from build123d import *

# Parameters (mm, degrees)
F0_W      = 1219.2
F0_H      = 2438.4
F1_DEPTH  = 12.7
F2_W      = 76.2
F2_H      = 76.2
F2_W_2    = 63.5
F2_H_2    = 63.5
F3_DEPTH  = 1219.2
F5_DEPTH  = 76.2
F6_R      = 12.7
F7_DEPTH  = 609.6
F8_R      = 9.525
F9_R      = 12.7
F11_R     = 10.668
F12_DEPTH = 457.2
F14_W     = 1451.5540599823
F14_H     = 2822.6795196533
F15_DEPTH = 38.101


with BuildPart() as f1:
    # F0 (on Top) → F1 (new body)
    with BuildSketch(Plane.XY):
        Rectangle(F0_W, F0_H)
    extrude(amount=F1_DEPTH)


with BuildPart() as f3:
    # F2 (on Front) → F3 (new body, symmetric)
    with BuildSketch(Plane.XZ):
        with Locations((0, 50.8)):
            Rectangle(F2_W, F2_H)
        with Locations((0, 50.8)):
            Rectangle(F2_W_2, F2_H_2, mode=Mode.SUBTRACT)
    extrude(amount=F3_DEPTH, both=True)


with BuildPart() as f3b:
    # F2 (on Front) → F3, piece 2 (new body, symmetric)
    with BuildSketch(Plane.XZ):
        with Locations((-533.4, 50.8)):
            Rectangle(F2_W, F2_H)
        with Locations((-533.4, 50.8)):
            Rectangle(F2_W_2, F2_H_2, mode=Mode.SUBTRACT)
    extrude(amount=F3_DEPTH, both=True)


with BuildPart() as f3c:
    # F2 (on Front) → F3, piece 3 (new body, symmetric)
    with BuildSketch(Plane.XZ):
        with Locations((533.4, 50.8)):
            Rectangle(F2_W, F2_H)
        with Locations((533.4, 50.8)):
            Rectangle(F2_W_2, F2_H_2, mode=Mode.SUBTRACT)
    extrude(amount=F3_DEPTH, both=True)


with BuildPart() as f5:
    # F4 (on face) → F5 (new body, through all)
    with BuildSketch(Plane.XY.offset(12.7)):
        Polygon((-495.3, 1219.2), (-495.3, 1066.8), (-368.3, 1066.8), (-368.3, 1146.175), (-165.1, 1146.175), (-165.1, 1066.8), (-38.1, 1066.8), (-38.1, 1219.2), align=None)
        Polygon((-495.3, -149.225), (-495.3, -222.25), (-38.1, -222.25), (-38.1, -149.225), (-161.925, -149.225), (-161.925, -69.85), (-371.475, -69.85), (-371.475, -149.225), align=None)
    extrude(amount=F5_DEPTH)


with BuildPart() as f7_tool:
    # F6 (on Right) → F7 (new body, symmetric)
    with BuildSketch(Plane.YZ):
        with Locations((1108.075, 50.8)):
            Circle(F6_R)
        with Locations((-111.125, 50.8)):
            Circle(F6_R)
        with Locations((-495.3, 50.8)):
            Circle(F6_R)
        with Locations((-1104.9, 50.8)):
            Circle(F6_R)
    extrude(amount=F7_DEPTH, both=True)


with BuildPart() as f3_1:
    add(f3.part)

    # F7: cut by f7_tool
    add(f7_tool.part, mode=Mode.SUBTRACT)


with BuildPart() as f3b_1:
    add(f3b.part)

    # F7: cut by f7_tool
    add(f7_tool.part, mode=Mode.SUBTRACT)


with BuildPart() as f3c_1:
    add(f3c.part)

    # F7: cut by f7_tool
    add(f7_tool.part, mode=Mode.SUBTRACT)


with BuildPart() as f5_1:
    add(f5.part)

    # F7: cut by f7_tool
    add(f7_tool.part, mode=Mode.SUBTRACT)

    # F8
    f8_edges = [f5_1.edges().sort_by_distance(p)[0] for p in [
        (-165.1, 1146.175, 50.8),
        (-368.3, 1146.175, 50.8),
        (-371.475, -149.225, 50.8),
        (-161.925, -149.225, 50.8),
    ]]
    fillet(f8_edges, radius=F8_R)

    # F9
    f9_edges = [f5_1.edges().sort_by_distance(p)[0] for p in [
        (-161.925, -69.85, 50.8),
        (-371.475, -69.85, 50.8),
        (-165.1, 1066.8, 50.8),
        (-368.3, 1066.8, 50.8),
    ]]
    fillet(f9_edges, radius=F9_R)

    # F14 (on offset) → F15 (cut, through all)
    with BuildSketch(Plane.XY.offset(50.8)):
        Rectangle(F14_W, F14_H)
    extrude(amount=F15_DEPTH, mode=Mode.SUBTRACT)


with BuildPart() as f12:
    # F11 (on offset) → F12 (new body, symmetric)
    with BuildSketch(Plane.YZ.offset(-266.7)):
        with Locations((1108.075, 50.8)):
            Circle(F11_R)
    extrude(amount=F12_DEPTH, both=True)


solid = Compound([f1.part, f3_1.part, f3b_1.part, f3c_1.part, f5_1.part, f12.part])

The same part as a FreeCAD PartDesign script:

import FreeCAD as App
import Part
import Sketcher
Q = App.Units.Quantity


def edges_at(feature, points):
    """Names of the edges that pass closest to the given points."""
    edges = feature.Shape.Edges
    near = lambda p: min(range(len(edges)), key=lambda i: edges[i].distToShape(Part.Vertex(*p))[0])
    return sorted({f"Edge{near(p) + 1}" for p in points})


def add_polygon(sketch, points):
    """Adds a closed chain of lines whose ends are joined by coincident constraints."""
    first, n = sketch.GeometryCount, len(points)
    for a, b in zip(points, points[1:] + points[:1]):
        sketch.addGeometry(Part.LineSegment(App.Vector(*a, 0), App.Vector(*b, 0)), False)
    for i in range(n):
        sketch.addConstraint(Sketcher.Constraint("Coincident", first + i, 2, first + (i + 1) % n, 1))

doc = App.newDocument("Part")
body = doc.addObject("PartDesign::Body", "Body")

sketch1 = body.newObject("Sketcher::SketchObject", "Sketch")
sketch1.AttachmentSupport = (doc.getObject("XY_Plane"), [""])
sketch1.MapMode = "FlatFace"
add_polygon(sketch1, [(-610, 1219), (-610, -1219), (610, -1219), (610, 1219)])
sketch1.addConstraint([
    Sketcher.Constraint("Vertical", 0),
    Sketcher.Constraint("Horizontal", 1),
    Sketcher.Constraint("Vertical", 2),
    Sketcher.Constraint("Horizontal", 3),
    Sketcher.Constraint("Symmetric", 0, 2, 2, 2, -1, 1),
    Sketcher.Constraint("DistanceX", 1, 1, 1, 2, Q("48 in")),
    Sketcher.Constraint("DistanceY", 0, 2, 0, 1, Q("96 in")),
])
pad1 = body.newObject("PartDesign::Pad", "Pad")
pad1.Profile = sketch1
pad1.Length = Q("0.5 in")
body2 = doc.addObject("PartDesign::Body", "Body001")

sketch2 = body2.newObject("Sketcher::SketchObject", "Sketch001")
sketch2.AttachmentSupport = (doc.getObject("XZ_Plane001"), [""])
sketch2.MapMode = "FlatFace"
add_polygon(sketch2, [(-38, 89), (-38, 13), (38, 13), (38, 89)])
add_polygon(sketch2, [(32, 19), (-32, 19), (-32, 83), (32, 83)])
sketch2.addConstraint([
    Sketcher.Constraint("Vertical", 0),
    Sketcher.Constraint("Horizontal", 1),
    Sketcher.Constraint("Vertical", 2),
    Sketcher.Constraint("Horizontal", 3),
    Sketcher.Constraint("Horizontal", 4),
    Sketcher.Constraint("Vertical", 5),
    Sketcher.Constraint("Horizontal", 6),
    Sketcher.Constraint("Vertical", 7),
    Sketcher.Constraint("Equal", 3, 0),
    Sketcher.Constraint("Equal", 6, 5),
    Sketcher.Constraint("DistanceX", 1, 1, 1, 2, Q("3 in")),
    Sketcher.Constraint("DistanceX", 4, 2, 4, 1, Q("2.5 in")),
    Sketcher.Constraint("DistanceX", 0, 2, -1, 1, Q("1.5 in")),
    Sketcher.Constraint("DistanceY", -1, 1, 0, 2, Q("0.5 in")),
    Sketcher.Constraint("DistanceX", 4, 2, -1, 1, Q("1.25 in")),
    Sketcher.Constraint("DistanceY", -1, 1, 4, 2, Q("0.75 in")),
])
pad2 = body2.newObject("PartDesign::Pad", "Pad001")
pad2.Profile = sketch2
pad2.Length = Q("96 in")
pad2.Midplane = True
body3 = doc.addObject("PartDesign::Body", "Body002")

sketch3 = body3.newObject("Sketcher::SketchObject", "Sketch002")
sketch3.AttachmentSupport = (doc.getObject("XZ_Plane002"), [""])
sketch3.MapMode = "FlatFace"
add_polygon(sketch3, [(-572, 89), (-572, 13), (-495, 13), (-495, 89)])
add_polygon(sketch3, [(-502, 19), (-565, 19), (-565, 83), (-502, 83)])
sketch3.addConstraint([
    Sketcher.Constraint("Vertical", 0),
    Sketcher.Constraint("Horizontal", 1),
    Sketcher.Constraint("Vertical", 2),
    Sketcher.Constraint("Horizontal", 3),
    Sketcher.Constraint("Horizontal", 4),
    Sketcher.Constraint("Vertical", 5),
    Sketcher.Constraint("Horizontal", 6),
    Sketcher.Constraint("Vertical", 7),
    Sketcher.Constraint("Equal", 3, 0),
    Sketcher.Constraint("Equal", 6, 5),
    Sketcher.Constraint("DistanceX", 1, 1, 1, 2, Q("3 in")),
    Sketcher.Constraint("DistanceX", 4, 2, 4, 1, Q("2.5 in")),
    Sketcher.Constraint("DistanceX", 0, 2, -1, 1, Q("22.5 in")),
    Sketcher.Constraint("DistanceY", -1, 1, 0, 2, Q("0.5 in")),
    Sketcher.Constraint("DistanceX", 4, 2, -1, 1, Q("22.25 in")),
    Sketcher.Constraint("DistanceY", -1, 1, 4, 2, Q("0.75 in")),
])
pad3 = body3.newObject("PartDesign::Pad", "Pad002")
pad3.Profile = sketch3
pad3.Length = Q("96 in")
pad3.Midplane = True
body4 = doc.addObject("PartDesign::Body", "Body003")

sketch4 = body4.newObject("Sketcher::SketchObject", "Sketch003")
sketch4.AttachmentSupport = (doc.getObject("XZ_Plane003"), [""])
sketch4.MapMode = "FlatFace"
add_polygon(sketch4, [(495, 89), (495, 13), (572, 13), (572, 89)])
add_polygon(sketch4, [(565, 19), (502, 19), (502, 83), (565, 83)])
sketch4.addConstraint([
    Sketcher.Constraint("Vertical", 0),
    Sketcher.Constraint("Horizontal", 1),
    Sketcher.Constraint("Vertical", 2),
    Sketcher.Constraint("Horizontal", 3),
    Sketcher.Constraint("Horizontal", 4),
    Sketcher.Constraint("Vertical", 5),
    Sketcher.Constraint("Horizontal", 6),
    Sketcher.Constraint("Vertical", 7),
    Sketcher.Constraint("Equal", 3, 0),
    Sketcher.Constraint("Equal", 6, 5),
    Sketcher.Constraint("DistanceX", 1, 1, 1, 2, Q("3 in")),
    Sketcher.Constraint("DistanceX", 4, 2, 4, 1, Q("2.5 in")),
    Sketcher.Constraint("DistanceX", -1, 1, 0, 2, Q("19.5 in")),
    Sketcher.Constraint("DistanceY", -1, 1, 0, 2, Q("0.5 in")),
    Sketcher.Constraint("DistanceX", -1, 1, 4, 2, Q("19.75 in")),
    Sketcher.Constraint("DistanceY", -1, 1, 4, 2, Q("0.75 in")),
])
pad4 = body4.newObject("PartDesign::Pad", "Pad003")
pad4.Profile = sketch4
pad4.Length = Q("96 in")
pad4.Midplane = True
body5 = doc.addObject("PartDesign::Body", "Body004")
body5.AllowCompound = True

sketch5 = body5.newObject("Sketcher::SketchObject", "Sketch004")
sketch5.AttachmentSupport = (doc.getObject("XY_Plane004"), [""])
sketch5.MapMode = "FlatFace"
sketch5.AttachmentOffset = App.Placement(App.Vector(0, 0, 0.5 * 25.4), App.Rotation())
add_polygon(sketch5, [(-495, 1219), (-495, 1067), (-368, 1067), (-368, 1146), (-165, 1146), (-165, 1067), (-38, 1067), (-38, 1219)])
add_polygon(sketch5, [(-495, -149), (-495, -222), (-38, -222), (-38, -149), (-162, -149), (-162, -70), (-371, -70), (-371, -149)])
sketch5.addConstraint([
    Sketcher.Constraint("Vertical", 0),
    Sketcher.Constraint("Horizontal", 1),
    Sketcher.Constraint("Vertical", 2),
    Sketcher.Constraint("Horizontal", 3),
    Sketcher.Constraint("Vertical", 4),
    Sketcher.Constraint("Horizontal", 5),
    Sketcher.Constraint("Vertical", 6),
    Sketcher.Constraint("Horizontal", 7),
    Sketcher.Constraint("Vertical", 8),
    Sketcher.Constraint("Horizontal", 9),
    Sketcher.Constraint("Vertical", 10),
    Sketcher.Constraint("Horizontal", 11),
    Sketcher.Constraint("Vertical", 12),
    Sketcher.Constraint("Horizontal", 13),
    Sketcher.Constraint("Vertical", 14),
    Sketcher.Constraint("Horizontal", 15),
    Sketcher.Constraint("Horizontal", 1, 2, 4, 2),
    Sketcher.Constraint("Horizontal", 11, 2, 14, 2),
    Sketcher.Constraint("Vertical", 7, 2, 8, 2),
    Sketcher.Constraint("Vertical", 6, 2, 9, 2),
    Sketcher.Constraint("Equal", 1, 5),
    Sketcher.Constraint("Equal", 11, 15),
    Sketcher.Constraint("Equal", 4, 12),
    Sketcher.Constraint("DistanceX", 1, 1, 1, 2, Q("5 in")),
    Sketcher.Constraint("DistanceX", 3, 1, 3, 2, Q("8 in")),
    Sketcher.Constraint("DistanceY", 0, 2, 0, 1, Q("6 in")),
    Sketcher.Constraint("DistanceY", -1, 1, 0, 2, Q("42 in")),
    Sketcher.Constraint("DistanceY", 9, 2, 12, 2, Q("6 in")),
    Sketcher.Constraint("DistanceX", 13, 2, 13, 1, Q("8.25 in")),
    Sketcher.Constraint("DistanceX", 0, 2, -1, 1, Q("19.5 in")),
    Sketcher.Constraint("DistanceY", 2, 1, 2, 2, Q("3.125 in")),
    Sketcher.Constraint("DistanceY", 8, 2, -1, 1, Q("8.75 in")),
])
pad5 = body5.newObject("PartDesign::Pad", "Pad004")
pad5.Profile = sketch5
pad5.Length = Q("3 in")
body6 = doc.addObject("PartDesign::Body", "Body005")
body6.AllowCompound = True

sketch6 = body6.newObject("Sketcher::SketchObject", "Sketch005")
sketch6.AttachmentSupport = (doc.getObject("YZ_Plane005"), [""])
sketch6.MapMode = "FlatFace"
sketch6.addGeometry([
    Part.Circle(App.Vector(1108, 51, 0), App.Vector(0, 0, 1), 13),
    Part.Circle(App.Vector(-111, 51, 0), App.Vector(0, 0, 1), 13),
    Part.Circle(App.Vector(-495, 51, 0), App.Vector(0, 0, 1), 13),
    Part.Circle(App.Vector(-1105, 51, 0), App.Vector(0, 0, 1), 13),
], False)
sketch6.addConstraint([
    Sketcher.Constraint("Equal", 0, 1),
    Sketcher.Constraint("Equal", 1, 2),
    Sketcher.Constraint("Equal", 2, 3),
    Sketcher.Constraint("Horizontal", 0, 3, 1, 3),
    Sketcher.Constraint("Horizontal", 1, 3, 2, 3),
    Sketcher.Constraint("Horizontal", 2, 3, 3, 3),
    Sketcher.Constraint("Diameter", 0, Q("1 in")),
    Sketcher.Constraint("DistanceY", -1, 1, 0, 3, Q("2 in")),
    Sketcher.Constraint("DistanceX", 1, 3, 0, 3, Q("48 in")),
    Sketcher.Constraint("DistanceX", 3, 3, 2, 3, Q("24 in")),
    Sketcher.Constraint("DistanceX", 2, 3, -1, 1, Q("19.5 in")),
    Sketcher.Constraint("DistanceX", -1, 1, 0, 3, Q("43.625 in")),
])
pad6 = body6.newObject("PartDesign::Pad", "Pad005")
pad6.Profile = sketch6
pad6.Length = Q("48 in")
pad6.Midplane = True
doc.recompute()

body7 = doc.addObject("PartDesign::Body", "Body006")
body7.BaseFeature = body6
boolean = body2.newObject("PartDesign::Boolean", "Boolean")
boolean.Type = "Cut"
boolean.addObjects([body7])
doc.recompute()

body8 = doc.addObject("PartDesign::Body", "Body007")
body8.BaseFeature = body6
boolean2 = body3.newObject("PartDesign::Boolean", "Boolean001")
boolean2.Type = "Cut"
boolean2.addObjects([body8])
doc.recompute()

body9 = doc.addObject("PartDesign::Body", "Body008")
body9.BaseFeature = body6
boolean3 = body4.newObject("PartDesign::Boolean", "Boolean002")
boolean3.Type = "Cut"
boolean3.addObjects([body9])
doc.recompute()
body5.AllowCompound = True
doc.recompute()

boolean4 = body5.newObject("PartDesign::Boolean", "Boolean003")
boolean4.Type = "Cut"
boolean4.addObjects([body6])
doc.recompute()

fillet = body5.newObject("PartDesign::Fillet", "Fillet")
fillet.Base = (boolean4, edges_at(boolean4, [
    (-165.1, 1146.175, 50.8),
    (-368.3, 1146.175, 50.8),
    (-371.475, -149.225, 50.8),
    (-161.925, -149.225, 50.8),
]))
fillet.Radius = Q("0.375 in")
doc.recompute()

fillet2 = body5.newObject("PartDesign::Fillet", "Fillet001")
fillet2.Base = (fillet, edges_at(fillet, [
    (-161.925, -69.85, 50.8),
    (-371.475, -69.85, 50.8),
    (-165.1, 1066.8, 50.8),
    (-368.3, 1066.8, 50.8),
]))
fillet2.Radius = Q("0.5 in")

sketch7 = body5.newObject("Sketcher::SketchObject", "Sketch006")
sketch7.AttachmentSupport = (doc.getObject("XY_Plane004"), [""])
sketch7.MapMode = "FlatFace"
sketch7.AttachmentOffset = App.Placement(App.Vector(0, 0, 2 * 25.4), App.Rotation())
add_polygon(sketch7, [(-726, 1411), (-726, -1411), (726, -1411), (726, 1411)])
sketch7.addConstraint([
    Sketcher.Constraint("Vertical", 0),
    Sketcher.Constraint("Horizontal", 1),
    Sketcher.Constraint("Vertical", 2),
    Sketcher.Constraint("Horizontal", 3),
    Sketcher.Constraint("Symmetric", 0, 2, 2, 2, -1, 1),
    Sketcher.Constraint("DistanceX", 1, 1, 1, 2, 1451.55406),
    Sketcher.Constraint("DistanceY", 0, 2, 0, 1, 2822.67952),
])
pocket1 = body5.newObject("PartDesign::Pocket", "Pocket")
pocket1.Profile = sketch7
pocket1.Type = "ThroughAll"
pocket1.Reversed = True
body10 = doc.addObject("PartDesign::Body", "Body009")

sketch8 = body10.newObject("Sketcher::SketchObject", "Sketch007")
sketch8.AttachmentSupport = (doc.getObject("YZ_Plane009"), [""])
sketch8.MapMode = "FlatFace"
sketch8.AttachmentOffset = App.Placement(App.Vector(0, 0, -10.5 * 25.4), App.Rotation())
sketch8.addGeometry(Part.Circle(App.Vector(1108, 51, 0), App.Vector(0, 0, 1), 11), False)
sketch8.addConstraint([
    Sketcher.Constraint("Diameter", 0, Q("0.84 in")),
    Sketcher.Constraint("DistanceY", -1, 1, 0, 3, Q("2 in")),
    Sketcher.Constraint("DistanceX", -1, 1, 0, 3, Q("43.625 in")),
])
pad7 = body10.newObject("PartDesign::Pad", "Pad006")
pad7.Profile = sketch8
pad7.Length = Q("36 in")
pad7.Midplane = True

doc.recompute()
